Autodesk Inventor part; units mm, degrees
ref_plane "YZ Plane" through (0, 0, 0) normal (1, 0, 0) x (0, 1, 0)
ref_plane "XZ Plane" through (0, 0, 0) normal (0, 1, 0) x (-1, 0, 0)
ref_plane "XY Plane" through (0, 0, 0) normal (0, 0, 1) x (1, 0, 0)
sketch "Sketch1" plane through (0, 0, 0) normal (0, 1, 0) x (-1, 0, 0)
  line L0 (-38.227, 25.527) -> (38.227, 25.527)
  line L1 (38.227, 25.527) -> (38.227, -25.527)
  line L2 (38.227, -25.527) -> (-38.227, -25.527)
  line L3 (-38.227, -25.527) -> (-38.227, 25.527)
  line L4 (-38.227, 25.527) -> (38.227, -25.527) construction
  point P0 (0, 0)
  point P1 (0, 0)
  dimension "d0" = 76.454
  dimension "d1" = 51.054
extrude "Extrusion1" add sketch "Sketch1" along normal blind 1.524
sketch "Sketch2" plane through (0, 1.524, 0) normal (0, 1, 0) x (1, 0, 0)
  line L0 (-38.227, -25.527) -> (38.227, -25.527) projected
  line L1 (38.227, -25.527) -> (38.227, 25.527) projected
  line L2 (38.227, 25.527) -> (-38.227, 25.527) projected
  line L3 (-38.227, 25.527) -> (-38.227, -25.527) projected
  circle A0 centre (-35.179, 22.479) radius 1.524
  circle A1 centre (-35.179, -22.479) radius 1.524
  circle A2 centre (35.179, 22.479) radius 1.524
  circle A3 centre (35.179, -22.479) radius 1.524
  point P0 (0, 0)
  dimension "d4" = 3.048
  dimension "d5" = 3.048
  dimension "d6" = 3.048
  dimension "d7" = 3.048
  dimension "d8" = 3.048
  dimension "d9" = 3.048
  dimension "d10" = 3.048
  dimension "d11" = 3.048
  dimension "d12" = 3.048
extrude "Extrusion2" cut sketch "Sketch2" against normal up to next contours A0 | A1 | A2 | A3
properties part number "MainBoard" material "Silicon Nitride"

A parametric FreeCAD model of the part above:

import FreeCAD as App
import Part
import Sketcher
Q = App.Units.Quantity

doc = App.newDocument("Part")
params = doc.addObject("Spreadsheet::Sheet", "Params")
for row, (alias, value) in enumerate([
    ("sketch1_width", "3.01 in"),
    ("sketch1_height", "2.01 in"),
    ("pad1_length", "0.06 in"),
    ("sketch2_diameter", "0.12 in"),
], start=1):
    params.set(f"A{row}", alias)
    params.set(f"B{row}", "=" + value)
    params.setAlias(f"B{row}", alias)

body = doc.addObject("PartDesign::Body", "Body")

sketch1 = body.newObject("Sketcher::SketchObject", "Sketch")
sketch1.AttachmentSupport = (doc.getObject("XZ_Plane"), [""])
sketch1.MapMode = "FlatFace"
sketch1.addGeometry([
    Part.LineSegment(App.Vector(-38, 26, 0), App.Vector(38, 26, 0)),
    Part.LineSegment(App.Vector(38, 26, 0), App.Vector(38, -26, 0)),
    Part.LineSegment(App.Vector(38, -26, 0), App.Vector(-38, -26, 0)),
    Part.LineSegment(App.Vector(-38, -26, 0), App.Vector(-38, 26, 0)),
], False)
sketch1.addConstraint([
    Sketcher.Constraint("Coincident", 0, 2, 1, 1),
    Sketcher.Constraint("Coincident", 1, 2, 2, 1),
    Sketcher.Constraint("Coincident", 2, 2, 3, 1),
    Sketcher.Constraint("Coincident", 3, 2, 0, 1),
    Sketcher.Constraint("Horizontal", 0),
    Sketcher.Constraint("Vertical", 1),
    Sketcher.Constraint("Horizontal", 2),
    Sketcher.Constraint("Vertical", 3),
    Sketcher.Constraint("Symmetric", 0, 2, 2, 2, -1, 1),
    Sketcher.Constraint("DistanceX", 0, 1, 0, 2, Q("3.01 in")),
    Sketcher.Constraint("DistanceY", 1, 2, 1, 1, Q("2.01 in")),
])
sketch1.setExpression("Constraints[9]", "Params.sketch1_width")
sketch1.setExpression("Constraints[10]", "Params.sketch1_height")
pad1 = body.newObject("PartDesign::Pad", "Pad")
pad1.Profile = sketch1
pad1.setExpression("Length", "Params.pad1_length")
pad1.Reversed = True

sketch2 = body.newObject("Sketcher::SketchObject", "Sketch001")
sketch2.AttachmentSupport = (doc.getObject("XZ_Plane"), [""])
sketch2.MapMode = "FlatFace"
sketch2.AttachmentOffset = App.Placement(App.Vector(0, 0, -0.06 * 25.4), App.Rotation())
sketch2.addGeometry([
    Part.Circle(App.Vector(-35.2, -22.5, 0), App.Vector(0, 0, 1), 1.5),
    Part.Circle(App.Vector(-35.2, 22.5, 0), App.Vector(0, 0, 1), 1.5),
    Part.Circle(App.Vector(35.2, -22.5, 0), App.Vector(0, 0, 1), 1.5),
    Part.Circle(App.Vector(35.2, 22.5, 0), App.Vector(0, 0, 1), 1.5),
], False)
sketch2.addConstraint([
    Sketcher.Constraint("Equal", 0, 1),
    Sketcher.Constraint("Equal", 1, 2),
    Sketcher.Constraint("Equal", 2, 3),
    Sketcher.Constraint("Symmetric", 1, 3, 2, 3, -1, 1),
    Sketcher.Constraint("Symmetric", 0, 3, 3, 3, -1, 1),
    Sketcher.Constraint("Symmetric", 0, 3, 2, 3, -2),
    Sketcher.Constraint("Diameter", 0, Q("0.12 in")),
    Sketcher.Constraint("DistanceY", 0, 3, 1, 3, Q("1.77 in")),
    Sketcher.Constraint("DistanceX", 0, 3, 2, 3, Q("2.77 in")),
])
sketch2.setExpression("Constraints[6]", "Params.sketch2_diameter")
pocket1 = body.newObject("PartDesign::Pocket", "Pocket")
pocket1.Profile = sketch2
pocket1.Type = "UpToFirst"
pocket1.Reversed = True

doc.recompute()
